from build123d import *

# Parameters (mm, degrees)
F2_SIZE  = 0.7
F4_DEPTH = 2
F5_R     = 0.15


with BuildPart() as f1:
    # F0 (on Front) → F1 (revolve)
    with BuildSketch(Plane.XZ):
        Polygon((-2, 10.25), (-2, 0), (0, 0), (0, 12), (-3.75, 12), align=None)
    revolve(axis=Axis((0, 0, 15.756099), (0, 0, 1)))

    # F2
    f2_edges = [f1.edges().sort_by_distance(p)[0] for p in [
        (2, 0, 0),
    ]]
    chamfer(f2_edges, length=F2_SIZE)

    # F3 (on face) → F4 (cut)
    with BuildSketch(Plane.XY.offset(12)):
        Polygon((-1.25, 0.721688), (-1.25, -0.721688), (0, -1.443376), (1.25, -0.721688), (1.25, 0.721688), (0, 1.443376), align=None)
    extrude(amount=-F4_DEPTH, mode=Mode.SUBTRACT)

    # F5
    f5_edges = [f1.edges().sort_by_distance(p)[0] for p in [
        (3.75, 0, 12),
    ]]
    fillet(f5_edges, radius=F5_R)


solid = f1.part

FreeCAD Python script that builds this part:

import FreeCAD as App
import Part
import Sketcher

V = App.Vector
Q = App.Units.Quantity


def edges_at(feature, points):
    """Names of the edges that pass closest to the given points."""
    edges = feature.Shape.Edges
    near = lambda p: min(range(len(edges)), key=lambda i: edges[i].distToShape(Part.Vertex(*p))[0])
    return sorted({f"Edge{near(p) + 1}" for p in points})

doc = App.newDocument("Part")
body = doc.addObject("PartDesign::Body", "Body")

sketch1 = body.newObject("Sketcher::SketchObject", "Sketch")
sketch1.AttachmentSupport = (doc.getObject("XZ_Plane"), [""])
sketch1.MapMode = "FlatFace"
sketch1.addGeometry(Part.LineSegment(V(-2, 10.2, 0), V(-2, 0, 0)), False)
sketch1.addGeometry(Part.LineSegment(V(-2, 0, 0), V(0, 0, 0)), False)
sketch1.addGeometry(Part.LineSegment(V(0, 0, 0), V(0, 12, 0)), False)
sketch1.addGeometry(Part.LineSegment(V(0, 12, 0), V(-3.8, 12, 0)), False)
sketch1.addGeometry(Part.LineSegment(V(-3.8, 12, 0), V(-2, 10.2, 0)), False)
sketch1.addConstraint(Sketcher.Constraint("Coincident", 0, 2, 1, 1))
sketch1.addConstraint(Sketcher.Constraint("Coincident", 1, 2, 2, 1))
sketch1.addConstraint(Sketcher.Constraint("Coincident", 2, 2, 3, 1))
sketch1.addConstraint(Sketcher.Constraint("Coincident", 3, 2, 4, 1))
sketch1.addConstraint(Sketcher.Constraint("Coincident", 4, 2, 0, 1))
sketch1.addConstraint(Sketcher.Constraint("Vertical", 0))
sketch1.addConstraint(Sketcher.Constraint("Horizontal", 1))
sketch1.addConstraint(Sketcher.Constraint("Vertical", 2))
sketch1.addConstraint(Sketcher.Constraint("Horizontal", 3))
sketch1.addConstraint(Sketcher.Constraint("Coincident", 1, 2, -1, 1))
sketch1.addConstraint(Sketcher.Constraint("DistanceX", 1, 1, 1, 2, 2.0))
sketch1.addConstraint(Sketcher.Constraint("DistanceY", 2, 1, 2, 2, 12.0))
sketch1.addConstraint(Sketcher.Constraint("Angle", 4, Q("-45 deg")))
sketch1.addConstraint(Sketcher.Constraint("DistanceX", 3, 2, 3, 1, 3.75))
revolution = body.newObject("PartDesign::Revolution", "Revolution")
revolution.Profile = sketch1
revolution.ReferenceAxis = (sketch1, ["V_Axis"])
revolution.Angle = 360
doc.recompute()

chamfer = body.newObject("PartDesign::Chamfer", "Chamfer")
chamfer.Base = (revolution, edges_at(revolution, [(2, 0, 0)]))
chamfer.Size = 0.7

sketch2 = body.newObject("Sketcher::SketchObject", "Sketch001")
sketch2.AttachmentSupport = (doc.getObject("XY_Plane"), [""])
sketch2.MapMode = "FlatFace"
sketch2.AttachmentOffset = App.Placement(V(0, 0, 12), App.Rotation())
sketch2.addGeometry(Part.LineSegment(V(-1.2, 0.7, 0), V(-1.2, -0.7, 0)), False)
sketch2.addGeometry(Part.LineSegment(V(-1.2, -0.7, 0), V(0, -1.4, 0)), False)
sketch2.addGeometry(Part.LineSegment(V(0, -1.4, 0), V(1.2, -0.7, 0)), False)
sketch2.addGeometry(Part.LineSegment(V(1.2, -0.7, 0), V(1.2, 0.7, 0)), False)
sketch2.addGeometry(Part.LineSegment(V(1.2, 0.7, 0), V(0, 1.4, 0)), False)
sketch2.addGeometry(Part.LineSegment(V(0, 1.4, 0), V(-1.2, 0.7, 0)), False)
sketch2.addConstraint(Sketcher.Constraint("Coincident", 0, 2, 1, 1))
sketch2.addConstraint(Sketcher.Constraint("Coincident", 1, 2, 2, 1))
sketch2.addConstraint(Sketcher.Constraint("Coincident", 2, 2, 3, 1))
sketch2.addConstraint(Sketcher.Constraint("Coincident", 3, 2, 4, 1))
sketch2.addConstraint(Sketcher.Constraint("Coincident", 4, 2, 5, 1))
sketch2.addConstraint(Sketcher.Constraint("Coincident", 5, 2, 0, 1))
sketch2.addConstraint(Sketcher.Constraint("Vertical", 0))
sketch2.addConstraint(Sketcher.Constraint("Vertical", 3))
sketch2.addConstraint(Sketcher.Constraint("Symmetric", 0, 2, 3, 2, -1, 1))
sketch2.addConstraint(Sketcher.Constraint("Symmetric", 1, 2, 4, 2, -1, 1))
sketch2.addConstraint(Sketcher.Constraint("PointOnObject", 1, 2, -2))
sketch2.addConstraint(Sketcher.Constraint("Parallel", 2, 5))
sketch2.addConstraint(Sketcher.Constraint("Horizontal", 0, 2, 2, 2))
sketch2.addConstraint(Sketcher.Constraint("Angle", 1, Q("-30.000006 deg")))
sketch2.addConstraint(Sketcher.Constraint("DistanceX", 0, 2, 2, 2, 2.5))
sketch2.addConstraint(Sketcher.Constraint("DistanceY", 0, 2, 0, 1, 1.443376))
pocket1 = body.newObject("PartDesign::Pocket", "Pocket")
pocket1.Profile = sketch2
pocket1.Length = 2
doc.recompute()

fillet = body.newObject("PartDesign::Fillet", "Fillet")
fillet.Base = (pocket1, edges_at(pocket1, [(3.75, 0, 12)]))
fillet.Radius = 0.15

doc.recompute()
